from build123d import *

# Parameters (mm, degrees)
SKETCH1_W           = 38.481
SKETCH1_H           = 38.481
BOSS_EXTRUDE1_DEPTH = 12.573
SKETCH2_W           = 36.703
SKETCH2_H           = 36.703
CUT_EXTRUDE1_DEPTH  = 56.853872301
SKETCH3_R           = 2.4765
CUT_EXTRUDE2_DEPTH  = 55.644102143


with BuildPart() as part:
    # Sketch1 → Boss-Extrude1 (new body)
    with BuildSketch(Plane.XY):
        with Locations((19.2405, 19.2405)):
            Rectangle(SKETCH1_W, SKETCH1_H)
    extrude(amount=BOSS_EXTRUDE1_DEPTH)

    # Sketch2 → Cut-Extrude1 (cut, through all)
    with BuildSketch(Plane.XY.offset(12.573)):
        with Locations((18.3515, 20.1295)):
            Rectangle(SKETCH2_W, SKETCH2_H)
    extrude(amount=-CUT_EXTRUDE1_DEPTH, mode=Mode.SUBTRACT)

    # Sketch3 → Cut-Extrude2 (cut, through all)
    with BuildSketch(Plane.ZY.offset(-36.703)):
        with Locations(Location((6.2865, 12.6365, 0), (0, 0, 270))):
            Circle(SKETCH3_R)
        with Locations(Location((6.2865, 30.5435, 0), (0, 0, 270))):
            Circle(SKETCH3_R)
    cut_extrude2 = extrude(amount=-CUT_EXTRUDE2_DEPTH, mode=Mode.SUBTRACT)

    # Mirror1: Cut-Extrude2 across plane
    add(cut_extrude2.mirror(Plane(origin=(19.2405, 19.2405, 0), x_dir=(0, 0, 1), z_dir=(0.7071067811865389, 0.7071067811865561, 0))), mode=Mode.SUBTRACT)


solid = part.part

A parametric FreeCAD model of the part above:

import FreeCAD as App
import Part
import Sketcher
from FreeCAD import Vector
Q = App.Units.Quantity

doc = App.newDocument("Part")
body = doc.addObject("PartDesign::Body", "Body")

sketch1 = body.newObject("Sketcher::SketchObject", "Sketch")
sketch1.AttachmentSupport = (doc.getObject("XY_Plane"), [""])
sketch1.MapMode = "FlatFace"
sketch1.addGeometry(Part.LineSegment(Vector(0, 38.481, 0), Vector(0, 0, 0)), False)
sketch1.addGeometry(Part.LineSegment(Vector(0, 0, 0), Vector(38.481, 0, 0)), False)
sketch1.addGeometry(Part.LineSegment(Vector(38.481, 0, 0), Vector(38.481, 38.481, 0)), False)
sketch1.addGeometry(Part.LineSegment(Vector(38.481, 38.481, 0), Vector(0, 38.481, 0)), False)
sketch1.addConstraint(Sketcher.Constraint("Coincident", 0, 2, 1, 1))
sketch1.addConstraint(Sketcher.Constraint("Coincident", 1, 2, 2, 1))
sketch1.addConstraint(Sketcher.Constraint("Coincident", 2, 2, 3, 1))
sketch1.addConstraint(Sketcher.Constraint("Coincident", 3, 2, 0, 1))
sketch1.addConstraint(Sketcher.Constraint("Vertical", 0))
sketch1.addConstraint(Sketcher.Constraint("Horizontal", 1))
sketch1.addConstraint(Sketcher.Constraint("Vertical", 2))
sketch1.addConstraint(Sketcher.Constraint("Horizontal", 3))
sketch1.addConstraint(Sketcher.Constraint("Coincident", 0, 2, -1, 1))
sketch1.addConstraint(Sketcher.Constraint("Equal", 3, 0))
sketch1.addConstraint(Sketcher.Constraint("DistanceX", 1, 1, 1, 2, Q("1.515 in")))
pad1 = body.newObject("PartDesign::Pad", "Pad")
pad1.Profile = sketch1
pad1.Length = Q("0.495 in")

sketch2 = body.newObject("Sketcher::SketchObject", "Sketch001")
sketch2.AttachmentSupport = (doc.getObject("XY_Plane"), [""])
sketch2.MapMode = "FlatFace"
sketch2.AttachmentOffset = App.Placement(Vector(0, 0, 0.495 * 25.4), App.Rotation())
sketch2.addGeometry(Part.LineSegment(Vector(0, 38.481, 0), Vector(0, 1.778, 0)), False)
sketch2.addGeometry(Part.LineSegment(Vector(0, 1.778, 0), Vector(36.703, 1.778, 0)), False)
sketch2.addGeometry(Part.LineSegment(Vector(36.703, 1.778, 0), Vector(36.703, 38.481, 0)), False)
sketch2.addGeometry(Part.LineSegment(Vector(36.703, 38.481, 0), Vector(0, 38.481, 0)), False)
sketch2.addConstraint(Sketcher.Constraint("Coincident", 0, 2, 1, 1))
sketch2.addConstraint(Sketcher.Constraint("Coincident", 1, 2, 2, 1))
sketch2.addConstraint(Sketcher.Constraint("Coincident", 2, 2, 3, 1))
sketch2.addConstraint(Sketcher.Constraint("Coincident", 3, 2, 0, 1))
sketch2.addConstraint(Sketcher.Constraint("Vertical", 0))
sketch2.addConstraint(Sketcher.Constraint("Horizontal", 1))
sketch2.addConstraint(Sketcher.Constraint("Vertical", 2))
sketch2.addConstraint(Sketcher.Constraint("Horizontal", 3))
sketch2.addConstraint(Sketcher.Constraint("PointOnObject", 0, 2, -2))
sketch2.addConstraint(Sketcher.Constraint("Equal", 3, 0))
sketch2.addConstraint(Sketcher.Constraint("DistanceX", 1, 1, 1, 2, Q("1.445 in")))
sketch2.addConstraint(Sketcher.Constraint("DistanceY", -1, 1, 0, 2, Q("0.07 in")))
pocket1 = body.newObject("PartDesign::Pocket", "Pocket")
pocket1.Profile = sketch2
pocket1.Type = "ThroughAll"

sketch3 = body.newObject("Sketcher::SketchObject", "Sketch002")
sketch3.AttachmentSupport = (doc.getObject("YZ_Plane"), [""])
sketch3.MapMode = "FlatFace"
sketch3.AttachmentOffset = App.Placement(Vector(0, 0, 1.445 * 25.4), App.Rotation())
sketch3.addGeometry(Part.Circle(Vector(12.6365, 6.2865, 0), Vector(0, 0, 1), 2.4765), False)
sketch3.addGeometry(Part.Circle(Vector(30.5435, 6.2865, 0), Vector(0, 0, 1), 2.4765), False)
sketch3.addConstraint(Sketcher.Constraint("Equal", 0, 1))
sketch3.addConstraint(Sketcher.Constraint("Horizontal", 0, 3, 1, 3))
sketch3.addConstraint(Sketcher.Constraint("Diameter", 0, Q("0.195 in")))
sketch3.addConstraint(Sketcher.Constraint("DistanceX", 0, 3, 1, 3, Q("0.705 in")))
sketch3.addConstraint(Sketcher.Constraint("DistanceX", -1, 1, 0, 3, Q("0.4975 in")))
sketch3.addConstraint(Sketcher.Constraint("DistanceY", -1, 1, 0, 3, Q("0.2475 in")))
pocket2 = body.newObject("PartDesign::Pocket", "Pocket001")
pocket2.Profile = sketch3
pocket2.Type = "ThroughAll"
pocket2.Reversed = True
doc.recompute()

datumplane = body.newObject("PartDesign::Plane", "DatumPlane")
datumplane.Placement = App.Placement(Vector(19.2405, 19.2405, 0), App.Rotation(Vector(0.707106781, -0.707106781, 0), Vector(0, 0, -1), Vector(0.707106781, 0.707106781, 0), "ZXY"))
mirrored = body.newObject("PartDesign::Mirrored", "Mirrored")
mirrored.Originals = [pocket2]
mirrored.MirrorPlane = (datumplane, [""])
body.Tip = mirrored

doc.recompute()
